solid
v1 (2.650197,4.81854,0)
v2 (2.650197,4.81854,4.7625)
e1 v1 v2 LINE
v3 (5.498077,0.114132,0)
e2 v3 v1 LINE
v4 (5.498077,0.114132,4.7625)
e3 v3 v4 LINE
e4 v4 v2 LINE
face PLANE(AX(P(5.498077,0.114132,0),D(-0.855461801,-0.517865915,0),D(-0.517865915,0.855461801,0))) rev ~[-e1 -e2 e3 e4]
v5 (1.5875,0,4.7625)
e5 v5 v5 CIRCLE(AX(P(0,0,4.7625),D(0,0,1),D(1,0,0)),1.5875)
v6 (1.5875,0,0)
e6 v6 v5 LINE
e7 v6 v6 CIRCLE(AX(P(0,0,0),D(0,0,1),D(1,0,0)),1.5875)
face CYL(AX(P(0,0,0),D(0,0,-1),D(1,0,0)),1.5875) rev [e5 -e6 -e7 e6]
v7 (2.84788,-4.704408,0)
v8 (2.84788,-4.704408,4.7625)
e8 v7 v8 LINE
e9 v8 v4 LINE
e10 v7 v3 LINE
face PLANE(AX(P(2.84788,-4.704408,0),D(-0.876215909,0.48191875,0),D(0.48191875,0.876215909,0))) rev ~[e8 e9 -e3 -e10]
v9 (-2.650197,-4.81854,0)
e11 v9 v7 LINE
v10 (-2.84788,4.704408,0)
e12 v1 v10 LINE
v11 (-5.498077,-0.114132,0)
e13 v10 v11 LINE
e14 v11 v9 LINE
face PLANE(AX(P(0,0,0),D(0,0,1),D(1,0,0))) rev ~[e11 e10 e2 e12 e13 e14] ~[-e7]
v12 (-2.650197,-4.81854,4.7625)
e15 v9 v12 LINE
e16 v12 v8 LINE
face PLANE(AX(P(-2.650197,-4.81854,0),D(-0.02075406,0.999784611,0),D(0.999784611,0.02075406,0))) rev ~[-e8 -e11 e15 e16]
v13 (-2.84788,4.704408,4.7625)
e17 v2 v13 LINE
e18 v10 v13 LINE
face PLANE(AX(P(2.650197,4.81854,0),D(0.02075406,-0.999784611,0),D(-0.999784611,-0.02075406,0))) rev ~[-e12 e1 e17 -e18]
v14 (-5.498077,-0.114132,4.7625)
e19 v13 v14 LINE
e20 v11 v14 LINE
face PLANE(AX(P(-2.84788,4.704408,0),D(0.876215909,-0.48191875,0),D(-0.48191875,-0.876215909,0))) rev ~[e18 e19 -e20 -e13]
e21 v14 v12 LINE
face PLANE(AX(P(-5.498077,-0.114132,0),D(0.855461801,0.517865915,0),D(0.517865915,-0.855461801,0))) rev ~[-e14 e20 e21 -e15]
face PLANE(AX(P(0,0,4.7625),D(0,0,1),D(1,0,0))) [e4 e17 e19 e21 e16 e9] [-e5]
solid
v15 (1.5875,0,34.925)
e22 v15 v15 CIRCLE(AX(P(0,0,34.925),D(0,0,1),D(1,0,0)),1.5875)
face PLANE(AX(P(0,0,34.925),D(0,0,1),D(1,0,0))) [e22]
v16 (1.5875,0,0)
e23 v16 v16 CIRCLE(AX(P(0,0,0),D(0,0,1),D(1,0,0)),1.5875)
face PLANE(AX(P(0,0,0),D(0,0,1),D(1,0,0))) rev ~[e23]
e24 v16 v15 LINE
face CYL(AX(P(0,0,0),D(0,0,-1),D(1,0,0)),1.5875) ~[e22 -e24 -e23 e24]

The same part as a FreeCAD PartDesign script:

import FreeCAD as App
import Part
import Sketcher
from FreeCAD import Vector
Q = App.Units.Quantity

doc = App.newDocument("Part")
body = doc.addObject("PartDesign::Body", "Body")

# Sketch on XY plane
sketch1 = body.newObject("Sketcher::SketchObject", "Sketch")
sketch1.AttachmentSupport = (doc.getObject("XY_Plane"), [""])
sketch1.MapMode = "FlatFace"
sketch1.addGeometry(Part.LineSegment(Vector(2.8, -4.7, 0), Vector(5.5, 0.1, 0)), False)
sketch1.addGeometry(Part.LineSegment(Vector(5.5, 0.1, 0), Vector(2.7, 4.8, 0)), False)
sketch1.addGeometry(Part.LineSegment(Vector(2.7, 4.8, 0), Vector(-2.8, 4.7, 0)), False)
sketch1.addGeometry(Part.LineSegment(Vector(-2.8, 4.7, 0), Vector(-5.5, -0.1, 0)), False)
sketch1.addGeometry(Part.LineSegment(Vector(-5.5, -0.1, 0), Vector(-2.7, -4.8, 0)), False)
sketch1.addGeometry(Part.LineSegment(Vector(-2.7, -4.8, 0), Vector(2.8, -4.7, 0)), False)
sketch1.addGeometry(Part.Circle(Vector(0, 0, 0), Vector(0, 0, 1), 1.6), False)
sketch1.addConstraint(Sketcher.Constraint("Coincident", 0, 2, 1, 1))
sketch1.addConstraint(Sketcher.Constraint("Coincident", 1, 2, 2, 1))
sketch1.addConstraint(Sketcher.Constraint("Coincident", 2, 2, 3, 1))
sketch1.addConstraint(Sketcher.Constraint("Coincident", 3, 2, 4, 1))
sketch1.addConstraint(Sketcher.Constraint("Coincident", 4, 2, 5, 1))
sketch1.addConstraint(Sketcher.Constraint("Coincident", 5, 2, 0, 1))
sketch1.addConstraint(Sketcher.Constraint("Coincident", 6, 3, -1, 1))
sketch1.addConstraint(Sketcher.Constraint("Symmetric", 0, 2, 3, 2, -1, 1))
sketch1.addConstraint(Sketcher.Constraint("Symmetric", 1, 2, 4, 2, -1, 1))
sketch1.addConstraint(Sketcher.Constraint("Symmetric", 2, 2, 5, 2, -1, 1))
sketch1.addConstraint(Sketcher.Constraint("Equal", 0, 1))
sketch1.addConstraint(Sketcher.Constraint("Equal", 1, 2))
sketch1.addConstraint(Sketcher.Constraint("Diameter", 6, Q("0.125 in")))
sketch1.addConstraint(Sketcher.Constraint("Distance", 0, 5.499261))
sketch1.addConstraint(Sketcher.Constraint("DistanceY", -1, 1, 1, 2, 4.81854))
sketch1.addConstraint(Sketcher.Constraint("DistanceX", 2, 2, -1, 1, 2.84788))
sketch1.addConstraint(Sketcher.Constraint("DistanceX", 1, 2, 0, 2, 2.84788))
pad1 = body.newObject("PartDesign::Pad", "Pad")
pad1.Profile = sketch1
pad1.Length = Q("0.1875 in")
body2 = doc.addObject("PartDesign::Body", "Body001")

# Sketch on XY plane
sketch2 = body2.newObject("Sketcher::SketchObject", "Sketch001")
sketch2.AttachmentSupport = (doc.getObject("XY_Plane001"), [""])
sketch2.MapMode = "FlatFace"
sketch2.addGeometry(Part.Circle(Vector(0, 0, 0), Vector(0, 0, 1), 1.6), False)
sketch2.addConstraint(Sketcher.Constraint("Coincident", 0, 3, -1, 1))
sketch2.addConstraint(Sketcher.Constraint("Diameter", 0, Q("0.125 in")))
pad2 = body2.newObject("PartDesign::Pad", "Pad001")
pad2.Profile = sketch2
pad2.Length = Q("1.375 in")

doc.recompute()
